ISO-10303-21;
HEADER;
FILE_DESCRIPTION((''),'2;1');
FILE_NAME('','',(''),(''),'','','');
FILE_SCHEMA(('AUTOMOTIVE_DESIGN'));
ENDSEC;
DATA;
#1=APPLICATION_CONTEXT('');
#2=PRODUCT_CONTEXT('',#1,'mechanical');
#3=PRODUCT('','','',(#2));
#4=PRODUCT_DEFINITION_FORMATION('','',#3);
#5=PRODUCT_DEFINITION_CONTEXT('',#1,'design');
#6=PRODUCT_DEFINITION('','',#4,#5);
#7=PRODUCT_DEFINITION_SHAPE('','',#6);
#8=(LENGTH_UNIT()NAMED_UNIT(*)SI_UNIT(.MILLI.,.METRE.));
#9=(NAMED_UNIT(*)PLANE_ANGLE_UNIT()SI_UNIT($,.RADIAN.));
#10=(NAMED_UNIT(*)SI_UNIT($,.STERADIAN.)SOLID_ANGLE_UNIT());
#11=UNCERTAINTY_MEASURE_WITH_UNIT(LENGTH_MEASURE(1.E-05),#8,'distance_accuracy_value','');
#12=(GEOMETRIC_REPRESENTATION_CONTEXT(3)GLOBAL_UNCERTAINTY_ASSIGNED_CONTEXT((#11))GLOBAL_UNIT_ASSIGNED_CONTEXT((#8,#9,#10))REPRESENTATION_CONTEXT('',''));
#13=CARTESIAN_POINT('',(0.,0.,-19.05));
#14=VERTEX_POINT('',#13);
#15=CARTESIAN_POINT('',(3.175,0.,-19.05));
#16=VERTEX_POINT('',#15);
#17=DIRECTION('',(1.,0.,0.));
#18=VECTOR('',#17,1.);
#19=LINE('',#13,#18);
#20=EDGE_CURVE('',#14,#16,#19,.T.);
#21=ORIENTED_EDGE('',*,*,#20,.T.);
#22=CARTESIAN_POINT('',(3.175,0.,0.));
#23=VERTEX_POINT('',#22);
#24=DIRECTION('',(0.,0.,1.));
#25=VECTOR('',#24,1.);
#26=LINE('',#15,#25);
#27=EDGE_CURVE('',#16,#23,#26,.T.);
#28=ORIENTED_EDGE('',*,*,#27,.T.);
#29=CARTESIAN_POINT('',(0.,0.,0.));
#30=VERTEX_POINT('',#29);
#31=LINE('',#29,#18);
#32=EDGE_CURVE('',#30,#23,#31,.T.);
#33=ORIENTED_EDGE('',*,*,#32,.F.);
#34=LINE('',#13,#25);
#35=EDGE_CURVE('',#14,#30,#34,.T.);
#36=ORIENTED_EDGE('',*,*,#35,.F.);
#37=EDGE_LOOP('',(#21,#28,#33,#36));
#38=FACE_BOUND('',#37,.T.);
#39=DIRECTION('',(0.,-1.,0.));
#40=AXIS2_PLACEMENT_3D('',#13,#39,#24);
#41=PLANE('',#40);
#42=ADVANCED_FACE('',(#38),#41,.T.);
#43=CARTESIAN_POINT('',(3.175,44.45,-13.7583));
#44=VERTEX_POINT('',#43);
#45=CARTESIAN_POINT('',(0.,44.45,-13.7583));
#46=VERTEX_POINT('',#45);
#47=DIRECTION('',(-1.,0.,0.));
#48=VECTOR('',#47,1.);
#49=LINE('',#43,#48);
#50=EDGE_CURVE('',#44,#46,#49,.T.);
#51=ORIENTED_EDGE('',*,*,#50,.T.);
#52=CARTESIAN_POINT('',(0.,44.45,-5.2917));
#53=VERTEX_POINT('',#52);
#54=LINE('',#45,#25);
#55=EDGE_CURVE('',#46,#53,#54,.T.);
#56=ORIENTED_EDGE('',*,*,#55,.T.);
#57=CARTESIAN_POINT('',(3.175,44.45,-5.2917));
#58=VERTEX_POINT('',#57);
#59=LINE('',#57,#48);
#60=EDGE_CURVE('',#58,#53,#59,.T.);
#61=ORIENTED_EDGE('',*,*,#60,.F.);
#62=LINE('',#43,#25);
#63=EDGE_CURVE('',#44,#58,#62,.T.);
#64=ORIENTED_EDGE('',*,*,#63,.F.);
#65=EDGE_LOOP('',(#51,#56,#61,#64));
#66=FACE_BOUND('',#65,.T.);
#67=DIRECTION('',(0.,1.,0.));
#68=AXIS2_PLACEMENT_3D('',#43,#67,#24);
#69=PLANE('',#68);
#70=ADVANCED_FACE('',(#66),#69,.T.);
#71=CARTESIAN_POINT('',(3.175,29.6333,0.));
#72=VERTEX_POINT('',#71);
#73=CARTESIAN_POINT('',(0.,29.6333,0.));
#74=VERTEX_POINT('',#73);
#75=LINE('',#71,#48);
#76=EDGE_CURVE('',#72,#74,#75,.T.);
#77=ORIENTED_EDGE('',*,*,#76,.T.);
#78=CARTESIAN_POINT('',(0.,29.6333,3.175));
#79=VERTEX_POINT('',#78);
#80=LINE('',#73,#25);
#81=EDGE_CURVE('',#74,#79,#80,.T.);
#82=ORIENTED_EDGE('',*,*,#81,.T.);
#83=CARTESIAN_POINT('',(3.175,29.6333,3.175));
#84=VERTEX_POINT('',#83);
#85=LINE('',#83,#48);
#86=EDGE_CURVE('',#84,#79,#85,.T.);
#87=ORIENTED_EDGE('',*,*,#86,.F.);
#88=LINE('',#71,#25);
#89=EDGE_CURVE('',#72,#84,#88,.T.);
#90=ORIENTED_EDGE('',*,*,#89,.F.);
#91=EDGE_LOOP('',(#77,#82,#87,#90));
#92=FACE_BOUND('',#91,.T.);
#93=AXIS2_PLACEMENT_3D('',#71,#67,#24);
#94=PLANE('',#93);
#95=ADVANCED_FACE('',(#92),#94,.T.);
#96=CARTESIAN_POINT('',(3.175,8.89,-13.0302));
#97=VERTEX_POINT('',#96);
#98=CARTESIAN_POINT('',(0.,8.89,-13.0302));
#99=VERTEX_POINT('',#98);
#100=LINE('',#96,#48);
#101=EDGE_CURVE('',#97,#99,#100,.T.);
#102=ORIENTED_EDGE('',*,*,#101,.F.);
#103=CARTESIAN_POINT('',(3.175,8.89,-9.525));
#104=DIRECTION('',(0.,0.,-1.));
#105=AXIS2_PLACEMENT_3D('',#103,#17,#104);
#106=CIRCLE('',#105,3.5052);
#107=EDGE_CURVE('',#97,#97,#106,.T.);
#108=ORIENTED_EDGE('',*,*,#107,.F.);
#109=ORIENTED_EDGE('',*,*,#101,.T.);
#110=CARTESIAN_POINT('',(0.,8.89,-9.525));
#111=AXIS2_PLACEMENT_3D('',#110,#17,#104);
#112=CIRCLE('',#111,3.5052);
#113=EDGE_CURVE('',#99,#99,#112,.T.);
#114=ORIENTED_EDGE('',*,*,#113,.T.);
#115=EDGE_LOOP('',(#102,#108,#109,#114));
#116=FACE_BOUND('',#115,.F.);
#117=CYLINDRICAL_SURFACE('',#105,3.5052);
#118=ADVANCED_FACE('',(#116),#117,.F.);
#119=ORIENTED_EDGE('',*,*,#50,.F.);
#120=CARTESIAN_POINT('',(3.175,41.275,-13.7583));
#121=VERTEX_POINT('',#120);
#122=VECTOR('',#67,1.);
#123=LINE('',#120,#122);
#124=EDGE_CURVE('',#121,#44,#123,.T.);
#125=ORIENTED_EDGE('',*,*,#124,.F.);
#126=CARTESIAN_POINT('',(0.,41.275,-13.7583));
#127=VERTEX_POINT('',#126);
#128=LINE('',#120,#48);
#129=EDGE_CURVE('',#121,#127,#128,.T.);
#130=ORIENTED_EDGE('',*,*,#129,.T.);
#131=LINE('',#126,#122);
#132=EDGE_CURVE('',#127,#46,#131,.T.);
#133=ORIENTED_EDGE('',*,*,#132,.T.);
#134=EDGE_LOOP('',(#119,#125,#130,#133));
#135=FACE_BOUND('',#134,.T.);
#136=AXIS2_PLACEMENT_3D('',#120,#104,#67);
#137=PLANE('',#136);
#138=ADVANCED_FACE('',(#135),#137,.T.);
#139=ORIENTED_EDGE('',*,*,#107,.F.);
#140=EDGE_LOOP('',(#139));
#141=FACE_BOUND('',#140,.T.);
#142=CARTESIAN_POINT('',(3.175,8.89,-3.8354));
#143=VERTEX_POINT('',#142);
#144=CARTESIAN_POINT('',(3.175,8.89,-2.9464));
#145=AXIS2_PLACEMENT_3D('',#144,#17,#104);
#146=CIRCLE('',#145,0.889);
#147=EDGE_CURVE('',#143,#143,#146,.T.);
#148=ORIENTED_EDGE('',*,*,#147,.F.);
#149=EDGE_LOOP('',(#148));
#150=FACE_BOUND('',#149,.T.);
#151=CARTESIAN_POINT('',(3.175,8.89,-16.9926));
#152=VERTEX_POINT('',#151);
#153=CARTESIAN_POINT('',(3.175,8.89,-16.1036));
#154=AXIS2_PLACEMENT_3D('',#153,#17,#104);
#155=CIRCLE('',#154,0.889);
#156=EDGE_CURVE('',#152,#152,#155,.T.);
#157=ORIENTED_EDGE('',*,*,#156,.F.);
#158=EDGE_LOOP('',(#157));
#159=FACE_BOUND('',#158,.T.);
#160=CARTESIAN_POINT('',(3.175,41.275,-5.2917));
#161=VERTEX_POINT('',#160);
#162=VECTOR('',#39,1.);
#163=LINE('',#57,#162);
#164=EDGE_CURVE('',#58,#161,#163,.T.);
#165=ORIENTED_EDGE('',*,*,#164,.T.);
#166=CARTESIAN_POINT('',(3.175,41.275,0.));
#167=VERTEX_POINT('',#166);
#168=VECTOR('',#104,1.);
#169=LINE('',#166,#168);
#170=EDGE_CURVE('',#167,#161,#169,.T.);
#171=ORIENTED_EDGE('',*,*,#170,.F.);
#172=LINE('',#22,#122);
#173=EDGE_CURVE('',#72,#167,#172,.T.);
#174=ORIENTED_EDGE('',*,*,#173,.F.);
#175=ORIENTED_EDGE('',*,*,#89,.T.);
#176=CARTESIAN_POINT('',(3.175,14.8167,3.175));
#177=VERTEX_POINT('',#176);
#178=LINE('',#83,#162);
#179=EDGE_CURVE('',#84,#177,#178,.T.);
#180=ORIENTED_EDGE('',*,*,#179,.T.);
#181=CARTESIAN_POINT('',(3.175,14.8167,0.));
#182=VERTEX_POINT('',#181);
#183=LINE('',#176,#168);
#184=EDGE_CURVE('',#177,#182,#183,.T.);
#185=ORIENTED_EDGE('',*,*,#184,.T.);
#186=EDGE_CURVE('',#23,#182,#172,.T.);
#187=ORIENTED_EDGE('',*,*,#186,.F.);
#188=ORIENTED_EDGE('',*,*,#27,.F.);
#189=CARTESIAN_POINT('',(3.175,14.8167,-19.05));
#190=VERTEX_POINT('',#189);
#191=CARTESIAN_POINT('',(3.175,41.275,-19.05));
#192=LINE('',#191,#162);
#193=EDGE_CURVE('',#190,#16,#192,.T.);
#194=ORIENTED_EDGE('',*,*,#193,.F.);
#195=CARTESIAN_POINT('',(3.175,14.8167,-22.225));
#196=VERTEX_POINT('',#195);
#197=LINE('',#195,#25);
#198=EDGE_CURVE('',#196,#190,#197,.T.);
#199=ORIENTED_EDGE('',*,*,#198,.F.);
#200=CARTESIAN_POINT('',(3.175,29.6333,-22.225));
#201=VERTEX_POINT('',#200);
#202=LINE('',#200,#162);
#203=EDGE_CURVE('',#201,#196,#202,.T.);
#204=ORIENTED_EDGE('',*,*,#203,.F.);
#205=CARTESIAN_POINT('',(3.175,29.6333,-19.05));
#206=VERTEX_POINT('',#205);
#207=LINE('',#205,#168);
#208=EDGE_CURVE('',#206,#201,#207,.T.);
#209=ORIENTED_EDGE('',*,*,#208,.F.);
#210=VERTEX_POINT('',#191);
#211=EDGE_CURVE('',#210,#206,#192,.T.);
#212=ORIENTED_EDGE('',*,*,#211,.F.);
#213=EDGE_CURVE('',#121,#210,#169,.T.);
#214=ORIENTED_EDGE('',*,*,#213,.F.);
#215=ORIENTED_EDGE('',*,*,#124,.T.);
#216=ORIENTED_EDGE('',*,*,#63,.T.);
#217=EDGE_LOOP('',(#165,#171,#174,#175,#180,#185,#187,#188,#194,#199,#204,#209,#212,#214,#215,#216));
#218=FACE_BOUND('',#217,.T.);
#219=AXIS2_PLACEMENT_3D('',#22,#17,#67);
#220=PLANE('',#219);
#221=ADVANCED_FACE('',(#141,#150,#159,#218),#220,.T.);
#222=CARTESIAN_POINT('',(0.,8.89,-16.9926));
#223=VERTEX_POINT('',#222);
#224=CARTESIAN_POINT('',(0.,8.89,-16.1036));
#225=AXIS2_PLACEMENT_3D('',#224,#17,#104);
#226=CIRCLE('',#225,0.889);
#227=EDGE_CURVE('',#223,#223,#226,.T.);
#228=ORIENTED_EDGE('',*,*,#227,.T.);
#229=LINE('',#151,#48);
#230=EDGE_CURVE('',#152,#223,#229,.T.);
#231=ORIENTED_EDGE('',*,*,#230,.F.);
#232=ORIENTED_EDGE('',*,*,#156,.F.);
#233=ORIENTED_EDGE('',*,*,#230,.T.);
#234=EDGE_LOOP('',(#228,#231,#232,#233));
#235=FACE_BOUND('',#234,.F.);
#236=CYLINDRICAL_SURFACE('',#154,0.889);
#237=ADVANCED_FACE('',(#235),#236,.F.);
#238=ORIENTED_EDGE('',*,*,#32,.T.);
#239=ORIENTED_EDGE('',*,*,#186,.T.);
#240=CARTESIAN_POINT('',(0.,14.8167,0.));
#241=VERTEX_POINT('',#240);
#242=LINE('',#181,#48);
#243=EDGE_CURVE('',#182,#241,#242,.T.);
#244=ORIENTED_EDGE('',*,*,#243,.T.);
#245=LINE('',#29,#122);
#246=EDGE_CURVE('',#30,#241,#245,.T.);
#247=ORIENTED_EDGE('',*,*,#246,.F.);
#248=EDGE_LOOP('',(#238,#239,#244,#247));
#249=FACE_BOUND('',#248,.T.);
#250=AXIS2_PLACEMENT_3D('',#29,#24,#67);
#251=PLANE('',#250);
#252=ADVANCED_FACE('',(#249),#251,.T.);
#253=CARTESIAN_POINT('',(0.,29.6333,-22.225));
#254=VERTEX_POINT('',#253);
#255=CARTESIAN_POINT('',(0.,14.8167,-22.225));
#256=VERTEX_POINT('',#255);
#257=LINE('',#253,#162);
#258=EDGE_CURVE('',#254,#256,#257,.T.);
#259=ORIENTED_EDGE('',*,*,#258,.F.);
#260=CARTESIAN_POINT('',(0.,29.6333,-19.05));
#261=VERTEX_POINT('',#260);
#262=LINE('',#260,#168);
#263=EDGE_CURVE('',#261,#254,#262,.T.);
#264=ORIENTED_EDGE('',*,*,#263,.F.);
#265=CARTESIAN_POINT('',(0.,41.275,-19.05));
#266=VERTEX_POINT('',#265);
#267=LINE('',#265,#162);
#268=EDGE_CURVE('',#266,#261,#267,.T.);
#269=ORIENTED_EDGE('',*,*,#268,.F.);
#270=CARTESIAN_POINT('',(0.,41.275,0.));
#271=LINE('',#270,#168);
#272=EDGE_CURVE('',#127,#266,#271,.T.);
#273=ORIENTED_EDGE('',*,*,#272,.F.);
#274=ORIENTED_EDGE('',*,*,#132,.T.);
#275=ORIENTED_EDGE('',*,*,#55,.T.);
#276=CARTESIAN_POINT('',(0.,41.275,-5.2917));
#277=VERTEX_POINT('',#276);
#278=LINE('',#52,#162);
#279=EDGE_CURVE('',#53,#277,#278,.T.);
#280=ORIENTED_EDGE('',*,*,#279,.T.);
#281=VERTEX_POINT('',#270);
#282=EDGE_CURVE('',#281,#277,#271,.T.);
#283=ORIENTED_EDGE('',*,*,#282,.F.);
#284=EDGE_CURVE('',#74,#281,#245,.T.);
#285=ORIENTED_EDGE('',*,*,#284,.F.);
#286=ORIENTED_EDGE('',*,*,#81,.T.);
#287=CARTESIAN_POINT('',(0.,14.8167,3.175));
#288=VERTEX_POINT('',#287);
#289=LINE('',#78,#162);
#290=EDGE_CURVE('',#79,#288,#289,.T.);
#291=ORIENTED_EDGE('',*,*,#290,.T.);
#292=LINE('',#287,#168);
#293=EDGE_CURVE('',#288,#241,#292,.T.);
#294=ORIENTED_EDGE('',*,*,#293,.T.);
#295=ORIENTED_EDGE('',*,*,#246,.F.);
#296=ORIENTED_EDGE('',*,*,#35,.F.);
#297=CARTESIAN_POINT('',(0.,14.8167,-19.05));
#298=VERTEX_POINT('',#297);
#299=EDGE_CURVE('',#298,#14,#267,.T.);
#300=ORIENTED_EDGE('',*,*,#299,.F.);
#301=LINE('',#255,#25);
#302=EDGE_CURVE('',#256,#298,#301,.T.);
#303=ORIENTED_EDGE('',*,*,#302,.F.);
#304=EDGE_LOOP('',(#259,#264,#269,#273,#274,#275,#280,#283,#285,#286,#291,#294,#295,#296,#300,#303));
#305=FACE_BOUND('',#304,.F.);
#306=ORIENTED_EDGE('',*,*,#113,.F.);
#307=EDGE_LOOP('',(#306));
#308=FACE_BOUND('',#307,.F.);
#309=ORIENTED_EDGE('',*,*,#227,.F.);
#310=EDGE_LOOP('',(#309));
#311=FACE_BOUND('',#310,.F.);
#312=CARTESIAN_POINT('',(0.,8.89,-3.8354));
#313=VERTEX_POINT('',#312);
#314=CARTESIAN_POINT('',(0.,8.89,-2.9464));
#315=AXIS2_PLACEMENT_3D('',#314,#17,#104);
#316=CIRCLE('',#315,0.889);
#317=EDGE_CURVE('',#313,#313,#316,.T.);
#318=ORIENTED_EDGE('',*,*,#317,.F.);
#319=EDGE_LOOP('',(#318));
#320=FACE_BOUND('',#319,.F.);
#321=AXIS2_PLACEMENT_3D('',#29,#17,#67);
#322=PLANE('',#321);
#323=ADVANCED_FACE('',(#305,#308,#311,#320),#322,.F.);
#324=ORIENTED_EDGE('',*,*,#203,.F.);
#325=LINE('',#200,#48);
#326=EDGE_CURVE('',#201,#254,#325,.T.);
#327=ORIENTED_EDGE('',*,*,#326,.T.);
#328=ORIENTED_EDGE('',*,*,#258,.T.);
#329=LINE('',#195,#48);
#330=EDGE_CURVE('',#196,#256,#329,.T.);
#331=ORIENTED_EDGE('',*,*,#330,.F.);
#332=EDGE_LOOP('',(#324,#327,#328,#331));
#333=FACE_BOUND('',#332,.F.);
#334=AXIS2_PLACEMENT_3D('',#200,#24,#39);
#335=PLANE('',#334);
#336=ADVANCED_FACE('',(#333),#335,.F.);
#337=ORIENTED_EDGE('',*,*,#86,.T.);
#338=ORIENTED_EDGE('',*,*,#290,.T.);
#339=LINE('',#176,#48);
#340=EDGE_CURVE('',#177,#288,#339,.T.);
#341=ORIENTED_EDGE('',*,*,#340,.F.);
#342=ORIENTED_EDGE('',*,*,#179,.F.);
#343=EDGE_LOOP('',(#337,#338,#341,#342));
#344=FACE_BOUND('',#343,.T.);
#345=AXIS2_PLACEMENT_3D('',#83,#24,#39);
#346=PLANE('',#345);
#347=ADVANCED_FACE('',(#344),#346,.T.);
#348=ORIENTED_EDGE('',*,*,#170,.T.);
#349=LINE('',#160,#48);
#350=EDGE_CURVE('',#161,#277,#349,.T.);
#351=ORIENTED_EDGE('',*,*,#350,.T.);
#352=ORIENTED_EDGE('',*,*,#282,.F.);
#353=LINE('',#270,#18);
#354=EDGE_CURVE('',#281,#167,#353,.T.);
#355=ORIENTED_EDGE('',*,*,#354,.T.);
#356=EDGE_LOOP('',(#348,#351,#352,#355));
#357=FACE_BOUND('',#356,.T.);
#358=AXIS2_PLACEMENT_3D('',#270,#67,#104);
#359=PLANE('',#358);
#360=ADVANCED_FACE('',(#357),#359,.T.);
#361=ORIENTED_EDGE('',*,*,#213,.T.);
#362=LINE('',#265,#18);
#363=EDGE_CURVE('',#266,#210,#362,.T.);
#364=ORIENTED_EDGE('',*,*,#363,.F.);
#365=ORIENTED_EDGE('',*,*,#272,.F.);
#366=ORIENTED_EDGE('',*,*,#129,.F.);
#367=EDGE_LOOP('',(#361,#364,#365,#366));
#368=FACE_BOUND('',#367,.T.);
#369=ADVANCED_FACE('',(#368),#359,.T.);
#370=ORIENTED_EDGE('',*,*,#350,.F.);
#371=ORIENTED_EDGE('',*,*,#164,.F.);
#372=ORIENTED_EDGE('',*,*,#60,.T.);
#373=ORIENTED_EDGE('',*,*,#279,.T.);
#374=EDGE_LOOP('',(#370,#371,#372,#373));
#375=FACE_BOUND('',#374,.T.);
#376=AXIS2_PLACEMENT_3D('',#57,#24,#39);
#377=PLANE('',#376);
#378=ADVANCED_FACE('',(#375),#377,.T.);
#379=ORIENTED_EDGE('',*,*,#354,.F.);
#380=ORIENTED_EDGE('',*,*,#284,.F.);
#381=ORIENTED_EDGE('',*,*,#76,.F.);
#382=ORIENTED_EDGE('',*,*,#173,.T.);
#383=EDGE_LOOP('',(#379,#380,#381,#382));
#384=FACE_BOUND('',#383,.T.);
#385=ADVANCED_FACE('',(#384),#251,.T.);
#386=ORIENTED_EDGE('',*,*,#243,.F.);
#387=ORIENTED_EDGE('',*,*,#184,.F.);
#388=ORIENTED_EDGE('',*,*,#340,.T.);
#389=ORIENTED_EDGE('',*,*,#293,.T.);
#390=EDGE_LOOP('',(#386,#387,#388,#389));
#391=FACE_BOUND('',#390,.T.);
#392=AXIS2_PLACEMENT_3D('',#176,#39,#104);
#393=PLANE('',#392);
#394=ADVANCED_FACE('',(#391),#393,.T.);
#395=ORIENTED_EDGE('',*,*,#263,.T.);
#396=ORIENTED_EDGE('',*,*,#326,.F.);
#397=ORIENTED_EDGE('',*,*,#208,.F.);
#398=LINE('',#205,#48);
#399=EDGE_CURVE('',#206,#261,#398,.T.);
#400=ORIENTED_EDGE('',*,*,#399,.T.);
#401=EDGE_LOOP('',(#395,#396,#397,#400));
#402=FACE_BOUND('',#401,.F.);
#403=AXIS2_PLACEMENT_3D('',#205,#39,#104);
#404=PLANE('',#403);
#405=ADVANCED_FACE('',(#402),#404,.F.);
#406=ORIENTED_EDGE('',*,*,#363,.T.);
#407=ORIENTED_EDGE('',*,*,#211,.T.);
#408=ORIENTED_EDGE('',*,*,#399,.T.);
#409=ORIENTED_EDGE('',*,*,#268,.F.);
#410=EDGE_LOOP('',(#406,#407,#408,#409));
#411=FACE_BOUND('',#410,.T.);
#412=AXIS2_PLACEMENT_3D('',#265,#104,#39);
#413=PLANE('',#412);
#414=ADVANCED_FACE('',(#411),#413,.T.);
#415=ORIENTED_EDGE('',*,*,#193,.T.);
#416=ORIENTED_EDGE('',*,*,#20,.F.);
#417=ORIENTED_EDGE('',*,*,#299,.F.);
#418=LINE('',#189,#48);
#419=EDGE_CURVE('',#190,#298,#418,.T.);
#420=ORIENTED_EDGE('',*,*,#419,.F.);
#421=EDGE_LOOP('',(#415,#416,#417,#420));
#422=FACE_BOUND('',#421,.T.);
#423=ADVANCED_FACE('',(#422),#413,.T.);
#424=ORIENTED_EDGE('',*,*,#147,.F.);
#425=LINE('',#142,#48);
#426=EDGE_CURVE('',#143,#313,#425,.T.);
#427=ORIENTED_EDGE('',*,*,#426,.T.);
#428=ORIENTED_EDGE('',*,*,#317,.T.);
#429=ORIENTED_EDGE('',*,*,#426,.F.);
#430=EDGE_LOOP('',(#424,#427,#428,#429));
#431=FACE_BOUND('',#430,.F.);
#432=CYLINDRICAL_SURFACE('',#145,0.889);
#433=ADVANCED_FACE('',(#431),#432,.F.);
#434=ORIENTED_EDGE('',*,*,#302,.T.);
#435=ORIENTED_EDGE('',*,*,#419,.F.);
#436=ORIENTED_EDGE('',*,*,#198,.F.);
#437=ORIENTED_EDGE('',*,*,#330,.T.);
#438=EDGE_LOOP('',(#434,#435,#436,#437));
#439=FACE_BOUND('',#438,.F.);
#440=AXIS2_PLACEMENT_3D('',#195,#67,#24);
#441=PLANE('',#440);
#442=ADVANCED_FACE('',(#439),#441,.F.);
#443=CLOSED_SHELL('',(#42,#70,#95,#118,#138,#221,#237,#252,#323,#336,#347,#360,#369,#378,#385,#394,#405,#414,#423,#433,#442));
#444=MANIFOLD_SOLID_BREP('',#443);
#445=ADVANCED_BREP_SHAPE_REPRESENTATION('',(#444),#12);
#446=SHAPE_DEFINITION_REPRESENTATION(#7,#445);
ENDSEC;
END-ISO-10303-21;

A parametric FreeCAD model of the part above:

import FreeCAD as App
import Part
import Sketcher

V = App.Vector
Q = App.Units.Quantity

doc = App.newDocument("Part")
body = doc.addObject("PartDesign::Body", "Body")

sketch1 = doc.addObject("Sketcher::SketchObject", "Sketch")
body.addObject(sketch1)
sketch1.AttachmentSupport = (doc.YZ_Plane, [""])
sketch1.MapMode = "FlatFace"
sketch1.addGeometry([
    Part.LineSegment(V(41, 0, 0), V(0, 0, 0)),
    Part.LineSegment(V(0, 0, 0), V(0, -19, 0)),
    Part.LineSegment(V(0, -19, 0), V(41, -19, 0)),
    Part.LineSegment(V(41, -19, 0), V(41, 0, 0)),
], False)
sketch1.addConstraint([
    Sketcher.Constraint("Coincident", 0, 2, 1, 1),
    Sketcher.Constraint("Coincident", 1, 2, 2, 1),
    Sketcher.Constraint("Coincident", 2, 2, 3, 1),
    Sketcher.Constraint("Coincident", 3, 2, 0, 1),
    Sketcher.Constraint("Horizontal", 0),
    Sketcher.Constraint("Vertical", 1),
    Sketcher.Constraint("Horizontal", 2),
    Sketcher.Constraint("Vertical", 3),
    Sketcher.Constraint("Coincident", 0, 2, -1, 1),
    Sketcher.Constraint("DistanceY", 1, 2, 1, 1, Q("0.75 in")),
    Sketcher.Constraint("DistanceX", 0, 2, 0, 1, Q("1.625 in")),
])
pad1 = doc.addObject("PartDesign::Pad", "Pad")
body.addObject(pad1)
pad1.Profile = sketch1
pad1.Length = Q("0.125 in")

sketch2 = doc.addObject("Sketcher::SketchObject", "Sketch001")
body.addObject(sketch2)
sketch2.AttachmentSupport = (doc.YZ_Plane, [""])
sketch2.MapMode = "FlatFace"
sketch2.AttachmentOffset = App.Placement(V(0, 0, 0.125 * 25.4), App.Rotation())
sketch2.addGeometry([
    Part.LineSegment(V(14.8, 0, 0), V(29.6, 0, 0)),
    Part.LineSegment(V(29.6, 0, 0), V(29.6, 3.2, 0)),
    Part.LineSegment(V(29.6, 3.2, 0), V(14.8, 3.2, 0)),
    Part.LineSegment(V(14.8, 3.2, 0), V(14.8, 0, 0)),
    Part.LineSegment(V(44.5, -5.3, 0), V(41.3, -5.3, 0)),
    Part.LineSegment(V(41.3, -5.3, 0), V(41.3, -13.8, 0)),
    Part.LineSegment(V(41.3, -13.8, 0), V(44.5, -13.8, 0)),
    Part.LineSegment(V(44.5, -13.8, 0), V(44.5, -5.3, 0)),
    Part.LineSegment(V(29.6, -22.2, 0), V(29.6, -19.1, 0)),
    Part.LineSegment(V(29.6, -19.1, 0), V(14.8, -19.1, 0)),
    Part.LineSegment(V(14.8, -19.1, 0), V(14.8, -22.2, 0)),
    Part.LineSegment(V(14.8, -22.2, 0), V(29.6, -22.2, 0)),
], False)
sketch2.addConstraint([
    Sketcher.Constraint("Coincident", 0, 2, 1, 1),
    Sketcher.Constraint("Coincident", 1, 2, 2, 1),
    Sketcher.Constraint("Coincident", 2, 2, 3, 1),
    Sketcher.Constraint("Coincident", 3, 2, 0, 1),
    Sketcher.Constraint("Coincident", 4, 2, 5, 1),
    Sketcher.Constraint("Coincident", 5, 2, 6, 1),
    Sketcher.Constraint("Coincident", 6, 2, 7, 1),
    Sketcher.Constraint("Coincident", 7, 2, 4, 1),
    Sketcher.Constraint("Coincident", 8, 2, 9, 1),
    Sketcher.Constraint("Coincident", 9, 2, 10, 1),
    Sketcher.Constraint("Coincident", 10, 2, 11, 1),
    Sketcher.Constraint("Coincident", 11, 2, 8, 1),
    Sketcher.Constraint("Horizontal", 0),
    Sketcher.Constraint("Vertical", 1),
    Sketcher.Constraint("Horizontal", 2),
    Sketcher.Constraint("Vertical", 3),
    Sketcher.Constraint("Horizontal", 4),
    Sketcher.Constraint("Vertical", 5),
    Sketcher.Constraint("Horizontal", 6),
    Sketcher.Constraint("Vertical", 7),
    Sketcher.Constraint("Vertical", 8),
    Sketcher.Constraint("Horizontal", 9),
    Sketcher.Constraint("Vertical", 10),
    Sketcher.Constraint("Horizontal", 11),
    Sketcher.Constraint("PointOnObject", 0, 2, -1),
    Sketcher.Constraint("Vertical", 1, 2, 8, 2),
    Sketcher.Constraint("Vertical", 3, 2, 9, 2),
    Sketcher.Constraint("Equal", 6, 1),
    Sketcher.Constraint("Equal", 3, 8),
    Sketcher.Constraint("DistanceX", 4, 2, 4, 1, Q("0.125 in")),
    Sketcher.Constraint("DistanceY", 10, 2, 2, 2, Q("1 in")),
    Sketcher.Constraint("DistanceX", 0, 1, 0, 2, Q("14.8166 mm")),
    Sketcher.Constraint("DistanceY", 5, 2, 5, 1, Q("8.4666 mm")),
    Sketcher.Constraint("DistanceX", -1, 1, 2, 2, Q("14.8167 mm")),
    Sketcher.Constraint("DistanceY", 4, 2, -1, 1, Q("5.2917 mm")),
    Sketcher.Constraint("DistanceX", -1, 1, 6, 2, Q("1.75 in")),
])
pad2 = doc.addObject("PartDesign::Pad", "Pad001")
body.addObject(pad2)
pad2.Profile = sketch2
pad2.Length = Q("0.125 in")
pad2.Reversed = True

sketch3 = doc.addObject("Sketcher::SketchObject", "Sketch002")
body.addObject(sketch3)
sketch3.AttachmentSupport = (doc.YZ_Plane, [""])
sketch3.MapMode = "FlatFace"
sketch3.AttachmentOffset = App.Placement(V(0, 0, 0.125 * 25.4), App.Rotation())
sketch3.addGeometry([
    Part.Circle(V(8.9, -9.5, 0), V(0, 0, 1), 3.5),
    Part.Circle(V(8.9, -16.1, 0), V(0, 0, 1), 0.9),
    Part.Circle(V(8.9, -2.9, 0), V(0, 0, 1), 0.9),
], False)
sketch3.addConstraint([
    Sketcher.Constraint("Equal", 1, 2),
    Sketcher.Constraint("Vertical", 0, 3, 1, 3),
    Sketcher.Constraint("Vertical", 1, 3, 2, 3),
    Sketcher.Constraint("Diameter", 1, Q("0.07 in")),
    Sketcher.Constraint("Diameter", 0, Q("0.276 in")),
    Sketcher.Constraint("DistanceX", -1, 1, 0, 3, Q("0.35 in")),
    Sketcher.Constraint("DistanceY", 1, 3, 0, 3, Q("0.259 in")),
    Sketcher.Constraint("DistanceY", 0, 3, 2, 3, Q("0.259 in")),
    Sketcher.Constraint("DistanceY", 0, 3, -1, 1, Q("0.375 in")),
])
pocket1 = doc.addObject("PartDesign::Pocket", "Pocket")
body.addObject(pocket1)
pocket1.Profile = sketch3
pocket1.Length = Q("0.125 in")

doc.recompute()
